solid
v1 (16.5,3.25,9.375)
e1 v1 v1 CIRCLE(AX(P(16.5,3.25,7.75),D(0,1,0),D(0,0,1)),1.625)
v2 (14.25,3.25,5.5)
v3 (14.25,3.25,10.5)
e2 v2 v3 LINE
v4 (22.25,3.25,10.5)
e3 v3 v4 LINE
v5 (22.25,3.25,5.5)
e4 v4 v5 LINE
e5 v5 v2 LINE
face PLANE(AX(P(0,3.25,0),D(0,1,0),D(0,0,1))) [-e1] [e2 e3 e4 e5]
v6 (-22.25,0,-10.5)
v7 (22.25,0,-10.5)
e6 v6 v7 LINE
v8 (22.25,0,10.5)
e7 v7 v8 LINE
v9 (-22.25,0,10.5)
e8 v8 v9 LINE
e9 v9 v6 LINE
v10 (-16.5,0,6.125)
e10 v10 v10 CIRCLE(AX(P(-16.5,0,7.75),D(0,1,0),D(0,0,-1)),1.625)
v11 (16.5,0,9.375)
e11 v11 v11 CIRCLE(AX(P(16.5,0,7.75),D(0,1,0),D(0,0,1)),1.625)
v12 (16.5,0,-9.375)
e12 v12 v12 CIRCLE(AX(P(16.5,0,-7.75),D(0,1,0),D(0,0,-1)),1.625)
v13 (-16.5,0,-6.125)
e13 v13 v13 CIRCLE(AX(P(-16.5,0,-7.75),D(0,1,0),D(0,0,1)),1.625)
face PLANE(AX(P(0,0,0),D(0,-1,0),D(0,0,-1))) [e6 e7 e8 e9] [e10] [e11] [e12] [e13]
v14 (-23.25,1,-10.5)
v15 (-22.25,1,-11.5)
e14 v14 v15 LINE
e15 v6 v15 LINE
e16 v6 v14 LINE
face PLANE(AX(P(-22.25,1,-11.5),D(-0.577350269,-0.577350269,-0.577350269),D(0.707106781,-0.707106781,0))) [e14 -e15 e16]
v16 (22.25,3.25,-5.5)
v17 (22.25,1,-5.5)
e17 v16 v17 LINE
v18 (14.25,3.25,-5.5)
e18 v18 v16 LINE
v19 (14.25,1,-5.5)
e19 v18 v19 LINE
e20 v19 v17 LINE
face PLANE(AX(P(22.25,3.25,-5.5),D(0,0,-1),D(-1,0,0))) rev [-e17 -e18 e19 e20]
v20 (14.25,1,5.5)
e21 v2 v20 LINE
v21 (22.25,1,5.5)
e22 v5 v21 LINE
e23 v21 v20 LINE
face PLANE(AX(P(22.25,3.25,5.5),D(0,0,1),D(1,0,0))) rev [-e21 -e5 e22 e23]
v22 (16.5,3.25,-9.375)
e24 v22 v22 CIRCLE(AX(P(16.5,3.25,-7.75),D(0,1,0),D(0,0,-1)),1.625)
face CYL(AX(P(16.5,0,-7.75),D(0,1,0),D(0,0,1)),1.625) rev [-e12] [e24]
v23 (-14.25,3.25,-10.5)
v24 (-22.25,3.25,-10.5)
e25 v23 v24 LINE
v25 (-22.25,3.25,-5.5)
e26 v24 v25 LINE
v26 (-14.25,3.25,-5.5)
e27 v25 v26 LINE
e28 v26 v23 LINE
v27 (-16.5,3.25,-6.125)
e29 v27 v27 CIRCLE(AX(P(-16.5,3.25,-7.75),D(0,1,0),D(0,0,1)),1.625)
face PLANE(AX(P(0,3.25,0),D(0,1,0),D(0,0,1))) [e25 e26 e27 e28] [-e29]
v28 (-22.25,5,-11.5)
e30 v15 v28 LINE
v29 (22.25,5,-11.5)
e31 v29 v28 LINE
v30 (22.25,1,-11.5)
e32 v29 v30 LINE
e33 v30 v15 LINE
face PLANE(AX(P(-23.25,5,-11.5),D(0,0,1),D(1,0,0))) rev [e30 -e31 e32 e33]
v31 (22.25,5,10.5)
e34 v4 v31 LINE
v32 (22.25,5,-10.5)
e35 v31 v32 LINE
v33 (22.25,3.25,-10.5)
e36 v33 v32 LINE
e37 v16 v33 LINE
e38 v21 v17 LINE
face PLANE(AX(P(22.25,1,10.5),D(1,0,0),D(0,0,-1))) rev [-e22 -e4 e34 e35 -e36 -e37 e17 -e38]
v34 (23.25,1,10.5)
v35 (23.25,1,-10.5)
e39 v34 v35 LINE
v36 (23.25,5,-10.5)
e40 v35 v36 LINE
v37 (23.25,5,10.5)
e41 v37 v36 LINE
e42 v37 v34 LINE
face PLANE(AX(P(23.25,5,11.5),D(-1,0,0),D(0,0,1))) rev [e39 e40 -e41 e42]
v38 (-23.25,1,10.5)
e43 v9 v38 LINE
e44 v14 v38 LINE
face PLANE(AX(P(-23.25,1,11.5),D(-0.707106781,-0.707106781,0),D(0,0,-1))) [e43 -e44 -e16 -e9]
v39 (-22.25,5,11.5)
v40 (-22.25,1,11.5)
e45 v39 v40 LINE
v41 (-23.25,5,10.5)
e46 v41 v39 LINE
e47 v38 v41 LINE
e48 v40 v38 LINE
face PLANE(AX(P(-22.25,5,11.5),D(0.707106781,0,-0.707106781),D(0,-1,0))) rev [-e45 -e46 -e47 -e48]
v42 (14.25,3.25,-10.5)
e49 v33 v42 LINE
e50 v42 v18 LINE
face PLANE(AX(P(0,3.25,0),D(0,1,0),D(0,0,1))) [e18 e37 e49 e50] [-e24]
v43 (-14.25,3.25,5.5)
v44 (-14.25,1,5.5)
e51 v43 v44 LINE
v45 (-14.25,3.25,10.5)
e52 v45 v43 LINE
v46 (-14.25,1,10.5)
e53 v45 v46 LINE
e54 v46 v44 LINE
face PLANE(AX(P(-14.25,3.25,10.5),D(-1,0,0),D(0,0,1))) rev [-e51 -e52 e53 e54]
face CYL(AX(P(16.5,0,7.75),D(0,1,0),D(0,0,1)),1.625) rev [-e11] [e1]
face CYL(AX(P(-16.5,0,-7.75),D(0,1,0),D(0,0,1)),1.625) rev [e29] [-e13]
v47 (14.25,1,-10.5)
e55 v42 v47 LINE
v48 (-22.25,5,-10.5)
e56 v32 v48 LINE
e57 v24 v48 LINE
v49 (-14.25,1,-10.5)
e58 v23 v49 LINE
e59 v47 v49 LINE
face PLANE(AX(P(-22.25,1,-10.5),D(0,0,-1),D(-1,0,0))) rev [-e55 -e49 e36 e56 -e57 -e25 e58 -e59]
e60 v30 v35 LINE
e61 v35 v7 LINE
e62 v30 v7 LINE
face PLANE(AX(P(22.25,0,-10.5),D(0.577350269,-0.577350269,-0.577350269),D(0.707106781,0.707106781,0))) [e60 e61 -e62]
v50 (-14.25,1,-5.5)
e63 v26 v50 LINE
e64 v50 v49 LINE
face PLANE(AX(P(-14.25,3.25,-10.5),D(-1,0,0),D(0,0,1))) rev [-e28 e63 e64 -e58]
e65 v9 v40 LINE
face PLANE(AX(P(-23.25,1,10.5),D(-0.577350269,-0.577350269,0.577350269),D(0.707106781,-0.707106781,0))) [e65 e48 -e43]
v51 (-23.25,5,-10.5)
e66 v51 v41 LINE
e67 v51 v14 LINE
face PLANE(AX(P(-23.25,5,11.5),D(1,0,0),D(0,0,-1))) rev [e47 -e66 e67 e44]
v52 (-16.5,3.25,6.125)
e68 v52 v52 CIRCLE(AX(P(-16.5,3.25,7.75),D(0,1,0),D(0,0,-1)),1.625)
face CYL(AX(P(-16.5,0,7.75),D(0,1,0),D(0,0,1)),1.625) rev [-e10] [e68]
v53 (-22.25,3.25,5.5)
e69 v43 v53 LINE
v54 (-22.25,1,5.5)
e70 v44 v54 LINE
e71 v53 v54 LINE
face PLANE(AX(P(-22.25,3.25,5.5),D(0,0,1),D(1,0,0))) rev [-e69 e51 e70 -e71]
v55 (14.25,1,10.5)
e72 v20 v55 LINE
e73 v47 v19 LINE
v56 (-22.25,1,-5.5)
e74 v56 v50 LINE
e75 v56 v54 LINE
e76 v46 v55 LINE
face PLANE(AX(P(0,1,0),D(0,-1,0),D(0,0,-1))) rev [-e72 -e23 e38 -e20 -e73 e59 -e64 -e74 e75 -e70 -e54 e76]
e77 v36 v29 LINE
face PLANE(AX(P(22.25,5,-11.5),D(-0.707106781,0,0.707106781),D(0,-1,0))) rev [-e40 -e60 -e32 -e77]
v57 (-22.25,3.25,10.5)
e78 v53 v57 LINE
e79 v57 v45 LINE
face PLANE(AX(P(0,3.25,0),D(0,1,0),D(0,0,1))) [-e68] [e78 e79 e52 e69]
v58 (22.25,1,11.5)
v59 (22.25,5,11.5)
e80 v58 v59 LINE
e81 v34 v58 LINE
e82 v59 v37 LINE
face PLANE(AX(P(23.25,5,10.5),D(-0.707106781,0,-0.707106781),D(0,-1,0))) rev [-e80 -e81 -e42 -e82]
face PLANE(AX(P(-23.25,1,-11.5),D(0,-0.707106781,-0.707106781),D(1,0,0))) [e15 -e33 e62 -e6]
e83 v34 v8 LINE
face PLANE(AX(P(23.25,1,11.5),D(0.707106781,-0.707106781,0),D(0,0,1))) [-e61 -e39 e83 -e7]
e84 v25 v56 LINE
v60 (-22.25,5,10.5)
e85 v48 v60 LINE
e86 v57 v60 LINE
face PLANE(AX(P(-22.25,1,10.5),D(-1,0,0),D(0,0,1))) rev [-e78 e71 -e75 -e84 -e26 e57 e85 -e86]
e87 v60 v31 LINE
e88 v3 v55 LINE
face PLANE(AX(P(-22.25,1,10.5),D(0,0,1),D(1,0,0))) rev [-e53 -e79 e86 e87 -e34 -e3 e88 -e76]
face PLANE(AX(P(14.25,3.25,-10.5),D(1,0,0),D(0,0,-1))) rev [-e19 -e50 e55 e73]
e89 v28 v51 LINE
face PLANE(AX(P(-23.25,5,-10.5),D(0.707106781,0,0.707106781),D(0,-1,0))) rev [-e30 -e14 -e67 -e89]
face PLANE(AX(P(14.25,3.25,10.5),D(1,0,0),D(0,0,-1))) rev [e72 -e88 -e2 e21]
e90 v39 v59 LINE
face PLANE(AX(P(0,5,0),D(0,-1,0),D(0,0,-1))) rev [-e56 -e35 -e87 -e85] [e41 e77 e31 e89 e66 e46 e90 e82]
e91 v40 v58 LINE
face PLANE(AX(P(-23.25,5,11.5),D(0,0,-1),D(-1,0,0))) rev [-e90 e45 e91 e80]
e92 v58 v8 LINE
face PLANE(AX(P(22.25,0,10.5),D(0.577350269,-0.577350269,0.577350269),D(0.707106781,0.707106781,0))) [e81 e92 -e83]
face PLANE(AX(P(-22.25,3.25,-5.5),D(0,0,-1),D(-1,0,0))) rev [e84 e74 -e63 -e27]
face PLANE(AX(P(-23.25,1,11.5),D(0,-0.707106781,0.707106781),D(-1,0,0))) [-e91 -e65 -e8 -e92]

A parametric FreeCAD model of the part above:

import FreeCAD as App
import Part
import Sketcher
Q = App.Units.Quantity


def edges_at(feature, points):
    """Names of the edges that pass closest to the given points."""
    edges = feature.Shape.Edges
    near = lambda p: min(range(len(edges)), key=lambda i: edges[i].distToShape(Part.Vertex(*p))[0])
    return sorted({f"Edge{near(p) + 1}" for p in points})


def add_polygon(sketch, points):
    """Adds a closed chain of lines whose ends are joined by coincident constraints."""
    first, n = sketch.GeometryCount, len(points)
    for a, b in zip(points, points[1:] + points[:1]):
        sketch.addGeometry(Part.LineSegment(App.Vector(*a, 0), App.Vector(*b, 0)), False)
    for i in range(n):
        sketch.addConstraint(Sketcher.Constraint("Coincident", first + i, 2, first + (i + 1) % n, 1))

doc = App.newDocument("Part")
body = doc.addObject("PartDesign::Body", "Body")

# Sketch on XZ plane
sketch1 = body.newObject("Sketcher::SketchObject", "Sketch")
sketch1.AttachmentSupport = (doc.getObject("XZ_Plane"), [""])
sketch1.MapMode = "FlatFace"
add_polygon(sketch1, [(-23, -12), (-23, 12), (23, 12), (23, -12)])  # lines 0-3
sketch1.addConstraint([
    Sketcher.Constraint("Vertical", 0),
    Sketcher.Constraint("Horizontal", 1),
    Sketcher.Constraint("Vertical", 2),
    Sketcher.Constraint("Horizontal", 3),
    Sketcher.Constraint("Symmetric", 0, 2, 2, 2, -1, 1),
    Sketcher.Constraint("DistanceY", 0, 1, 0, 2, Q("23 mm")),
    Sketcher.Constraint("DistanceX", 1, 1, 1, 2, Q("46.5 mm")),
])
pad1 = body.newObject("PartDesign::Pad", "Pad")
pad1.Profile = sketch1
pad1.Length = 5
pad1.Reversed = True

# Sketch on XZ plane
sketch2 = body.newObject("Sketcher::SketchObject", "Sketch001")
sketch2.AttachmentSupport = (doc.getObject("XZ_Plane"), [""])
sketch2.MapMode = "FlatFace"
sketch2.AttachmentOffset = App.Placement(App.Vector(0, 0, -5), App.Rotation())
add_polygon(sketch2, [(-22, -10), (-22, 10), (22, 10), (22, -10)])  # lines 0-3
sketch2.addConstraint([
    Sketcher.Constraint("Vertical", 0),
    Sketcher.Constraint("Horizontal", 1),
    Sketcher.Constraint("Vertical", 2),
    Sketcher.Constraint("Horizontal", 3),
    Sketcher.Constraint("Symmetric", 0, 2, 2, 2, -1, 1),
    Sketcher.Constraint("DistanceY", 0, 1, 0, 2, Q("21 mm")),
    Sketcher.Constraint("DistanceX", 1, 1, 1, 2, Q("44.5 mm")),
])
pocket1 = body.newObject("PartDesign::Pocket", "Pocket")
pocket1.Profile = sketch2
pocket1.Length = 4
pocket1.Reversed = True

# Sketch on XZ plane
sketch3 = body.newObject("Sketcher::SketchObject", "Sketch002")
sketch3.AttachmentSupport = (doc.getObject("XZ_Plane"), [""])
sketch3.MapMode = "FlatFace"
sketch3.AttachmentOffset = App.Placement(App.Vector(0, 0, -1), App.Rotation())
add_polygon(sketch3, [(-22, -10), (-22, -6), (-14, -6), (-14, -10)])  # lines 0-3
add_polygon(sketch3, [(14, -10), (14, -6), (22, -6), (22, -10)])  # lines 4-7
add_polygon(sketch3, [(14, 6), (14, 10), (22, 10), (22, 6)])  # lines 8-11
add_polygon(sketch3, [(-22, 6), (-22, 10), (-14, 10), (-14, 6)])  # lines 12-15
sketch3.addConstraint([
    Sketcher.Constraint("Vertical", 0),
    Sketcher.Constraint("Horizontal", 1),
    Sketcher.Constraint("Vertical", 2),
    Sketcher.Constraint("Horizontal", 3),
    Sketcher.Constraint("Vertical", 4),
    Sketcher.Constraint("Horizontal", 5),
    Sketcher.Constraint("Vertical", 6),
    Sketcher.Constraint("Horizontal", 7),
    Sketcher.Constraint("Vertical", 8),
    Sketcher.Constraint("Horizontal", 9),
    Sketcher.Constraint("Vertical", 10),
    Sketcher.Constraint("Horizontal", 11),
    Sketcher.Constraint("Vertical", 12),
    Sketcher.Constraint("Horizontal", 13),
    Sketcher.Constraint("Vertical", 14),
    Sketcher.Constraint("Horizontal", 15),
    Sketcher.Constraint("Symmetric", 2, 2, 8, 2, -1, 1),
    Sketcher.Constraint("Symmetric", 0, 2, 10, 2, -1, 1),
    Sketcher.Constraint("Symmetric", 6, 2, 12, 2, -1, 1),
    Sketcher.Constraint("Symmetric", 4, 2, 14, 2, -1, 1),
    Sketcher.Constraint("Symmetric", 1, 2, 4, 2, -2),
    Sketcher.Constraint("Symmetric", 3, 2, 6, 2, -2),
    Sketcher.Constraint("DistanceX", 1, 1, 1, 2, Q("8 mm")),
    Sketcher.Constraint("DistanceY", 0, 1, 0, 2, Q("5 mm")),
    Sketcher.Constraint("DistanceY", 4, 2, 8, 2, Q("16 mm")),
    Sketcher.Constraint("DistanceX", 1, 2, 4, 2, Q("28.5 mm")),
])
pad2 = body.newObject("PartDesign::Pad", "Pad001")
pad2.Profile = sketch3
pad2.Length = 2.25
pad2.Reversed = True

# Sketch on XZ plane
sketch4 = body.newObject("Sketcher::SketchObject", "Sketch003")
sketch4.AttachmentSupport = (doc.getObject("XZ_Plane"), [""])
sketch4.MapMode = "FlatFace"
sketch4.AttachmentOffset = App.Placement(App.Vector(0, 0, -3.25), App.Rotation())
sketch4.addGeometry([
    Part.Circle(App.Vector(-16.5, -7.8, 0), App.Vector(0, 0, 1), 1.6),
    Part.Circle(App.Vector(16.5, -7.8, 0), App.Vector(0, 0, 1), 1.6),
    Part.Circle(App.Vector(16.5, 7.8, 0), App.Vector(0, 0, 1), 1.6),
    Part.Circle(App.Vector(-16.5, 7.8, 0), App.Vector(0, 0, 1), 1.6),
], False)
sketch4.addConstraint([
    Sketcher.Constraint("Equal", 0, 1),
    Sketcher.Constraint("Equal", 1, 2),
    Sketcher.Constraint("Equal", 2, 3),
    Sketcher.Constraint("Symmetric", 0, 3, 2, 3, -1, 1),
    Sketcher.Constraint("Symmetric", 1, 3, 3, 3, -1, 1),
    Sketcher.Constraint("Symmetric", 0, 3, 1, 3, -2),
    Sketcher.Constraint("Diameter", 0, Q("3.25 mm")),
    Sketcher.Constraint("DistanceX", 0, 3, 1, 3, Q("33 mm")),
    Sketcher.Constraint("DistanceY", 1, 3, 2, 3, Q("15.5 mm")),
])
pocket2 = body.newObject("PartDesign::Pocket", "Pocket001")
pocket2.Profile = sketch4
pocket2.Type = "ThroughAll"
pocket2.Reversed = True
doc.recompute()

chamfer = body.newObject("PartDesign::Chamfer", "Chamfer")
chamfer.Base = (pocket2, edges_at(pocket2, [
    (0, 0, 11.5),
    (-23.25, 0, 0),
    (0, 0, -11.5),
    (23.25, 0, 0),
    (23.25, 2.5, 11.5),
    (-23.25, 2.5, 11.5),
    (-23.25, 2.5, -11.5),
    (23.25, 2.5, -11.5),
]))
chamfer.Size = 1

doc.recompute()
